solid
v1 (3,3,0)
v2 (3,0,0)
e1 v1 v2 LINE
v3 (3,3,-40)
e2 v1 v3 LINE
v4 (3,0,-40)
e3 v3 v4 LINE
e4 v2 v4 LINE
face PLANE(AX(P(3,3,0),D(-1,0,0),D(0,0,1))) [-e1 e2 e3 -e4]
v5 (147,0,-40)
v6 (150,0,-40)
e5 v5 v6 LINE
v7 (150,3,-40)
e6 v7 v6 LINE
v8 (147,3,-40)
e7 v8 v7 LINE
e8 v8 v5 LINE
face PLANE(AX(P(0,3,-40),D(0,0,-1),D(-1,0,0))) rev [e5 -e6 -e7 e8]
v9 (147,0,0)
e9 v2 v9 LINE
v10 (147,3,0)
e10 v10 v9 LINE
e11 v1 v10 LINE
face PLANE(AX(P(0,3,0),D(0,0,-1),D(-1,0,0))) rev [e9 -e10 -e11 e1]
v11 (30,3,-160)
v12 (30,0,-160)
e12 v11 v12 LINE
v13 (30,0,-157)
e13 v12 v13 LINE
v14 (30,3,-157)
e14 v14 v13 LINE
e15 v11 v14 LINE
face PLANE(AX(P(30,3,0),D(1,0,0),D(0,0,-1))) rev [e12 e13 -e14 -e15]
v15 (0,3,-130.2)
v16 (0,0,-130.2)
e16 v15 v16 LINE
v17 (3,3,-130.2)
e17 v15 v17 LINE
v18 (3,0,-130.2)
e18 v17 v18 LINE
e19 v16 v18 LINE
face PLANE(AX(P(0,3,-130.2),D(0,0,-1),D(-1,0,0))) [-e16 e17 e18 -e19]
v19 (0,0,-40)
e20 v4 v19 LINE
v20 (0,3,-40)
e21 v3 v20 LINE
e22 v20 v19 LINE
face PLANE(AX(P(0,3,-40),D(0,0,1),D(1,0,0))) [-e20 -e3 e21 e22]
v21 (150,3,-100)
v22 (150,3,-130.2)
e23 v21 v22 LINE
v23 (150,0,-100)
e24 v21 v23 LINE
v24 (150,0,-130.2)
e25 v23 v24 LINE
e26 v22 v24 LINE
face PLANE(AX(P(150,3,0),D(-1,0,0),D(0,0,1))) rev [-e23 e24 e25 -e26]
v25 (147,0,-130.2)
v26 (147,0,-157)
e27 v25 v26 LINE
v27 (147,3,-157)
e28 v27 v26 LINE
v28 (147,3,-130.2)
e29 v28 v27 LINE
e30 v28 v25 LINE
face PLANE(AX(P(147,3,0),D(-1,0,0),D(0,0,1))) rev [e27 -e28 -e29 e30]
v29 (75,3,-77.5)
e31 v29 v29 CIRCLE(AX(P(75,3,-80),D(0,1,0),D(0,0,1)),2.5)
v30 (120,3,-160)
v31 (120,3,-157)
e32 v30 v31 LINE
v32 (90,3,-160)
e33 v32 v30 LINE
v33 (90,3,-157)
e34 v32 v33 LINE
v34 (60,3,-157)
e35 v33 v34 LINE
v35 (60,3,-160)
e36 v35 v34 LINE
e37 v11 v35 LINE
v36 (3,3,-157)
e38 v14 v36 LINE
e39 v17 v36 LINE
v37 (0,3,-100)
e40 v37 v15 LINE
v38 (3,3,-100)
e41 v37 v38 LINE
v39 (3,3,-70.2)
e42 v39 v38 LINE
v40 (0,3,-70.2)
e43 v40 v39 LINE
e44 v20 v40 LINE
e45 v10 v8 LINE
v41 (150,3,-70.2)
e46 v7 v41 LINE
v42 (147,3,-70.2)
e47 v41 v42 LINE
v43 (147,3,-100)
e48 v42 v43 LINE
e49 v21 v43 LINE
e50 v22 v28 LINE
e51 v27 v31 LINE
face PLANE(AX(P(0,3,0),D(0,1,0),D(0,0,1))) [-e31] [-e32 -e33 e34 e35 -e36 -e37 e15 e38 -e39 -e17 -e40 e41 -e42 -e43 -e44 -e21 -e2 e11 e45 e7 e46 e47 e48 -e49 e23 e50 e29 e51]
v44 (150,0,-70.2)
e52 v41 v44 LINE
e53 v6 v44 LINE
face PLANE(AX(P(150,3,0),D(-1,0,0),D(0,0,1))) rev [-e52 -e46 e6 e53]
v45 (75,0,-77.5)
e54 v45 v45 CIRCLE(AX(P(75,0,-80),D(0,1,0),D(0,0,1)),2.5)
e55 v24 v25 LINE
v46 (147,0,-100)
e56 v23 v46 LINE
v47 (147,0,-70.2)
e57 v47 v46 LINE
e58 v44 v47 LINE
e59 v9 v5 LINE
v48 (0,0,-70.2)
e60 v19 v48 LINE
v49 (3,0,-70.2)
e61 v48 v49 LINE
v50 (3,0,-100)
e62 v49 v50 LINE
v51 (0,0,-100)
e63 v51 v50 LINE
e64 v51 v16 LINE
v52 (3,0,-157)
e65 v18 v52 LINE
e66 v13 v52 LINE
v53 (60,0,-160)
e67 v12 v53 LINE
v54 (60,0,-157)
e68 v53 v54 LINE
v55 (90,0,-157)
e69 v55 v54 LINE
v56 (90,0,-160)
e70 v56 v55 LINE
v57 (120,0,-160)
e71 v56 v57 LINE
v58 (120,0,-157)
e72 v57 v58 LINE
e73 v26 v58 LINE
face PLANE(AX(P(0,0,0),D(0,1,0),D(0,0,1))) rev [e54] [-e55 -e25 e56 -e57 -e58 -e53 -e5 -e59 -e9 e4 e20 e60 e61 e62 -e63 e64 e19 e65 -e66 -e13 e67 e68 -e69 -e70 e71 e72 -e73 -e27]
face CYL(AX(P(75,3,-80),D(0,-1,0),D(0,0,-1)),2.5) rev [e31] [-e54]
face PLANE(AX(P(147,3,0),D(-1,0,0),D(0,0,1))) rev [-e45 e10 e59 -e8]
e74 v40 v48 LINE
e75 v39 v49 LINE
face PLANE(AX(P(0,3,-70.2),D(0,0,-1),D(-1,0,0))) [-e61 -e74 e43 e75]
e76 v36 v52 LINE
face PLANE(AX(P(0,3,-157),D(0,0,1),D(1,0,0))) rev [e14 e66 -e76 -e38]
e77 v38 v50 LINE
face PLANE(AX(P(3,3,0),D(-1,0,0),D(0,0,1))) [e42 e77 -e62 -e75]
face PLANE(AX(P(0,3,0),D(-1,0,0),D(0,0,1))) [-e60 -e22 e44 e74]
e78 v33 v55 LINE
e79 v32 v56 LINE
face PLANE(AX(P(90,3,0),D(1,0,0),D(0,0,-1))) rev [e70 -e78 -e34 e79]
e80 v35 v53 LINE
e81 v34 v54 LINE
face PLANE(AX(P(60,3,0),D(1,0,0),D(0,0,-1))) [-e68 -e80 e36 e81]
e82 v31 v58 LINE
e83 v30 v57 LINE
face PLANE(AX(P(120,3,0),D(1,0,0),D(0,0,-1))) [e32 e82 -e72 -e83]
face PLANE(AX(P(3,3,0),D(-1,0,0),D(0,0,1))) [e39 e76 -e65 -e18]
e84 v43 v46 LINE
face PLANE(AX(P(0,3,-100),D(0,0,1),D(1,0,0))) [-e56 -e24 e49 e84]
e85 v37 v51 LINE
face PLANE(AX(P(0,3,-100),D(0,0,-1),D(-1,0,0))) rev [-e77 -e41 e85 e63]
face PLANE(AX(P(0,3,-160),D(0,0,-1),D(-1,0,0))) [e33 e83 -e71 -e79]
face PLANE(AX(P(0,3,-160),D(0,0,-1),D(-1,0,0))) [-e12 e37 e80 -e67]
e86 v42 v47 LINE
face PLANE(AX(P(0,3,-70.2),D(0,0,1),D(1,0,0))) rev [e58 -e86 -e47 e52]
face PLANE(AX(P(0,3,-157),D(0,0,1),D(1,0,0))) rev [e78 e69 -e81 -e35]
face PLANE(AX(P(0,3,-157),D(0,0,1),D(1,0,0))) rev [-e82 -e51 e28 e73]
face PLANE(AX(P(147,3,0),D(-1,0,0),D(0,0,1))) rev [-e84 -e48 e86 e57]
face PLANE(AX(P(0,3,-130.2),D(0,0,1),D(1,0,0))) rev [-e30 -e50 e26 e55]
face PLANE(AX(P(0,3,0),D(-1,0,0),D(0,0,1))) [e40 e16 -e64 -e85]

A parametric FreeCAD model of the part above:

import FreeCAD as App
import Part
import Sketcher

V = App.Vector

doc = App.newDocument("Part")
params = doc.addObject("Spreadsheet::Sheet", "Params")
for row, (alias, value) in enumerate([
    ("sketch1_diameter", "5 mm"),
    ("sketch1_width", "3 mm"),
    ("sketch1_width2", "27 mm"),
    ("sketch1_width3", "30 mm"),
    ("sketch1_height", "40 mm"),
    ("pad1_length", "3 mm"),
], start=1):
    params.set(f"A{row}", alias)
    params.set(f"B{row}", "=" + value)
    params.setAlias(f"B{row}", alias)

body = doc.addObject("PartDesign::Body", "Body")

# Sketch on XZ plane
sketch1 = doc.addObject("Sketcher::SketchObject", "Sketch")
body.addObject(sketch1)
sketch1.AttachmentSupport = (doc.XZ_Plane, [""])
sketch1.MapMode = "FlatFace"
sketch1.addGeometry(Part.LineSegment(V(150, -130.2, 0), V(147, -130.2, 0)), False)
sketch1.addGeometry(Part.LineSegment(V(147, -130.2, 0), V(147, -157, 0)), False)
sketch1.addGeometry(Part.LineSegment(V(147, -157, 0), V(120, -157, 0)), False)
sketch1.addGeometry(Part.LineSegment(V(120, -157, 0), V(120, -160, 0)), False)
sketch1.addGeometry(Part.LineSegment(V(120, -160, 0), V(90, -160, 0)), False)
sketch1.addGeometry(Part.LineSegment(V(90, -160, 0), V(90, -157, 0)), False)
sketch1.addGeometry(Part.LineSegment(V(90, -157, 0), V(60, -157, 0)), False)
sketch1.addGeometry(Part.LineSegment(V(60, -157, 0), V(60, -160, 0)), False)
sketch1.addGeometry(Part.LineSegment(V(60, -160, 0), V(30, -160, 0)), False)
sketch1.addGeometry(Part.LineSegment(V(30, -160, 0), V(30, -157, 0)), False)
sketch1.addGeometry(Part.LineSegment(V(30, -157, 0), V(3, -157, 0)), False)
sketch1.addGeometry(Part.LineSegment(V(3, -157, 0), V(3, -130.2, 0)), False)
sketch1.addGeometry(Part.LineSegment(V(3, -130.2, 0), V(0, -130.2, 0)), False)
sketch1.addGeometry(Part.LineSegment(V(0, -130.2, 0), V(0, -100, 0)), False)
sketch1.addGeometry(Part.LineSegment(V(0, -100, 0), V(3, -100, 0)), False)
sketch1.addGeometry(Part.LineSegment(V(3, -100, 0), V(3, -70.2, 0)), False)
sketch1.addGeometry(Part.LineSegment(V(3, -70.2, 0), V(0, -70.2, 0)), False)
sketch1.addGeometry(Part.LineSegment(V(0, -70.2, 0), V(0, -40, 0)), False)
sketch1.addGeometry(Part.LineSegment(V(0, -40, 0), V(3, -40, 0)), False)
sketch1.addGeometry(Part.LineSegment(V(3, -40, 0), V(3, 0, 0)), False)
sketch1.addGeometry(Part.LineSegment(V(3, 0, 0), V(147, 0, 0)), False)
sketch1.addGeometry(Part.LineSegment(V(147, 0, 0), V(147, -40, 0)), False)
sketch1.addGeometry(Part.LineSegment(V(147, -40, 0), V(150, -40, 0)), False)
sketch1.addGeometry(Part.LineSegment(V(150, -40, 0), V(150, -70.2, 0)), False)
sketch1.addGeometry(Part.LineSegment(V(150, -70.2, 0), V(147, -70.2, 0)), False)
sketch1.addGeometry(Part.LineSegment(V(147, -70.2, 0), V(147, -100, 0)), False)
sketch1.addGeometry(Part.LineSegment(V(147, -100, 0), V(150, -100, 0)), False)
sketch1.addGeometry(Part.LineSegment(V(150, -100, 0), V(150, -130.2, 0)), False)
sketch1.addGeometry(Part.Circle(V(75, -80, 0), V(0, 0, 1), 2.5), False)
sketch1.addConstraint(Sketcher.Constraint("Coincident", 0, 2, 1, 1))
sketch1.addConstraint(Sketcher.Constraint("Coincident", 1, 2, 2, 1))
sketch1.addConstraint(Sketcher.Constraint("Coincident", 2, 2, 3, 1))
sketch1.addConstraint(Sketcher.Constraint("Coincident", 3, 2, 4, 1))
sketch1.addConstraint(Sketcher.Constraint("Coincident", 4, 2, 5, 1))
sketch1.addConstraint(Sketcher.Constraint("Coincident", 5, 2, 6, 1))
sketch1.addConstraint(Sketcher.Constraint("Coincident", 6, 2, 7, 1))
sketch1.addConstraint(Sketcher.Constraint("Coincident", 7, 2, 8, 1))
sketch1.addConstraint(Sketcher.Constraint("Coincident", 8, 2, 9, 1))
sketch1.addConstraint(Sketcher.Constraint("Coincident", 9, 2, 10, 1))
sketch1.addConstraint(Sketcher.Constraint("Coincident", 10, 2, 11, 1))
sketch1.addConstraint(Sketcher.Constraint("Coincident", 11, 2, 12, 1))
sketch1.addConstraint(Sketcher.Constraint("Coincident", 12, 2, 13, 1))
sketch1.addConstraint(Sketcher.Constraint("Coincident", 13, 2, 14, 1))
sketch1.addConstraint(Sketcher.Constraint("Coincident", 14, 2, 15, 1))
sketch1.addConstraint(Sketcher.Constraint("Coincident", 15, 2, 16, 1))
sketch1.addConstraint(Sketcher.Constraint("Coincident", 16, 2, 17, 1))
sketch1.addConstraint(Sketcher.Constraint("Coincident", 17, 2, 18, 1))
sketch1.addConstraint(Sketcher.Constraint("Coincident", 18, 2, 19, 1))
sketch1.addConstraint(Sketcher.Constraint("Coincident", 19, 2, 20, 1))
sketch1.addConstraint(Sketcher.Constraint("Coincident", 20, 2, 21, 1))
sketch1.addConstraint(Sketcher.Constraint("Coincident", 21, 2, 22, 1))
sketch1.addConstraint(Sketcher.Constraint("Coincident", 22, 2, 23, 1))
sketch1.addConstraint(Sketcher.Constraint("Coincident", 23, 2, 24, 1))
sketch1.addConstraint(Sketcher.Constraint("Coincident", 24, 2, 25, 1))
sketch1.addConstraint(Sketcher.Constraint("Coincident", 25, 2, 26, 1))
sketch1.addConstraint(Sketcher.Constraint("Coincident", 26, 2, 27, 1))
sketch1.addConstraint(Sketcher.Constraint("Coincident", 27, 2, 0, 1))
sketch1.addConstraint(Sketcher.Constraint("Horizontal", 0))
sketch1.addConstraint(Sketcher.Constraint("Vertical", 1))
sketch1.addConstraint(Sketcher.Constraint("Horizontal", 2))
sketch1.addConstraint(Sketcher.Constraint("Vertical", 3))
sketch1.addConstraint(Sketcher.Constraint("Horizontal", 4))
sketch1.addConstraint(Sketcher.Constraint("Vertical", 5))
sketch1.addConstraint(Sketcher.Constraint("Horizontal", 6))
sketch1.addConstraint(Sketcher.Constraint("Vertical", 7))
sketch1.addConstraint(Sketcher.Constraint("Horizontal", 8))
sketch1.addConstraint(Sketcher.Constraint("Vertical", 9))
sketch1.addConstraint(Sketcher.Constraint("Horizontal", 10))
sketch1.addConstraint(Sketcher.Constraint("Vertical", 11))
sketch1.addConstraint(Sketcher.Constraint("Horizontal", 12))
sketch1.addConstraint(Sketcher.Constraint("Vertical", 13))
sketch1.addConstraint(Sketcher.Constraint("Horizontal", 14))
sketch1.addConstraint(Sketcher.Constraint("Vertical", 15))
sketch1.addConstraint(Sketcher.Constraint("Horizontal", 16))
sketch1.addConstraint(Sketcher.Constraint("Vertical", 17))
sketch1.addConstraint(Sketcher.Constraint("Horizontal", 18))
sketch1.addConstraint(Sketcher.Constraint("Vertical", 19))
sketch1.addConstraint(Sketcher.Constraint("Horizontal", 20))
sketch1.addConstraint(Sketcher.Constraint("Vertical", 21))
sketch1.addConstraint(Sketcher.Constraint("Horizontal", 22))
sketch1.addConstraint(Sketcher.Constraint("Vertical", 23))
sketch1.addConstraint(Sketcher.Constraint("Horizontal", 24))
sketch1.addConstraint(Sketcher.Constraint("Vertical", 25))
sketch1.addConstraint(Sketcher.Constraint("Horizontal", 26))
sketch1.addConstraint(Sketcher.Constraint("Vertical", 27))
sketch1.addConstraint(Sketcher.Constraint("PointOnObject", 12, 2, -2))
sketch1.addConstraint(Sketcher.Constraint("PointOnObject", 16, 2, -2))
sketch1.addConstraint(Sketcher.Constraint("PointOnObject", 19, 2, -1))
sketch1.addConstraint(Sketcher.Constraint("Horizontal", 2, 2, 5, 2))
sketch1.addConstraint(Sketcher.Constraint("Horizontal", 4, 2, 7, 2))
sketch1.addConstraint(Sketcher.Constraint("Horizontal", 6, 2, 9, 2))
sketch1.addConstraint(Sketcher.Constraint("Horizontal", 0, 2, 11, 2))
sketch1.addConstraint(Sketcher.Constraint("Horizontal", 18, 2, 21, 2))
sketch1.addConstraint(Sketcher.Constraint("Horizontal", 16, 2, 23, 2))
sketch1.addConstraint(Sketcher.Constraint("Horizontal", 14, 2, 25, 2))
sketch1.addConstraint(Sketcher.Constraint("Vertical", 11, 2, 14, 2))
sketch1.addConstraint(Sketcher.Constraint("Vertical", 15, 2, 18, 2))
sketch1.addConstraint(Sketcher.Constraint("Vertical", 1, 2, 20, 2))
sketch1.addConstraint(Sketcher.Constraint("Vertical", 21, 2, 24, 2))
sketch1.addConstraint(Sketcher.Constraint("Vertical", 23, 2, 26, 2))
sketch1.addConstraint(Sketcher.Constraint("Equal", 4, 6))
sketch1.addConstraint(Sketcher.Constraint("Equal", 6, 8))
sketch1.addConstraint(Sketcher.Constraint("Equal", 2, 10))
sketch1.addConstraint(Sketcher.Constraint("Equal", 0, 12))
sketch1.addConstraint(Sketcher.Constraint("Equal", 26, 3))
sketch1.addConstraint(Sketcher.Constraint("Equal", 13, 17))
sketch1.addConstraint(Sketcher.Constraint("Diameter", 28, 5.0))
sketch1.addConstraint(Sketcher.Constraint("DistanceX", 0, 2, 0, 1, 3.0))
sketch1.addConstraint(Sketcher.Constraint("DistanceX", 2, 2, 2, 1, 27.0))
sketch1.addConstraint(Sketcher.Constraint("DistanceX", 4, 2, 4, 1, 30.0))
sketch1.addConstraint(Sketcher.Constraint("DistanceY", 19, 1, 19, 2, 40.0))
sketch1.addConstraint(Sketcher.Constraint("DistanceY", 1, 2, 1, 1, 26.8))
sketch1.addConstraint(Sketcher.Constraint("DistanceY", 13, 1, 13, 2, 30.2))
sketch1.addConstraint(Sketcher.Constraint("DistanceY", 15, 1, 15, 2, 29.8))
sketch1.addConstraint(Sketcher.Constraint("DistanceX", -1, 1, 28, 3, 75.0))
sketch1.addConstraint(Sketcher.Constraint("DistanceY", 28, 3, -1, 1, 80.0))
sketch1.setExpression("Constraints[77]", "Params.sketch1_diameter")
sketch1.setExpression("Constraints[78]", "Params.sketch1_width")
sketch1.setExpression("Constraints[79]", "Params.sketch1_width2")
sketch1.setExpression("Constraints[80]", "Params.sketch1_width3")
sketch1.setExpression("Constraints[81]", "Params.sketch1_height")
pad1 = doc.addObject("PartDesign::Pad", "Pad")
body.addObject(pad1)
pad1.Profile = sketch1
pad1.setExpression("Length", "Params.pad1_length")
pad1.Reversed = True

doc.recompute()
